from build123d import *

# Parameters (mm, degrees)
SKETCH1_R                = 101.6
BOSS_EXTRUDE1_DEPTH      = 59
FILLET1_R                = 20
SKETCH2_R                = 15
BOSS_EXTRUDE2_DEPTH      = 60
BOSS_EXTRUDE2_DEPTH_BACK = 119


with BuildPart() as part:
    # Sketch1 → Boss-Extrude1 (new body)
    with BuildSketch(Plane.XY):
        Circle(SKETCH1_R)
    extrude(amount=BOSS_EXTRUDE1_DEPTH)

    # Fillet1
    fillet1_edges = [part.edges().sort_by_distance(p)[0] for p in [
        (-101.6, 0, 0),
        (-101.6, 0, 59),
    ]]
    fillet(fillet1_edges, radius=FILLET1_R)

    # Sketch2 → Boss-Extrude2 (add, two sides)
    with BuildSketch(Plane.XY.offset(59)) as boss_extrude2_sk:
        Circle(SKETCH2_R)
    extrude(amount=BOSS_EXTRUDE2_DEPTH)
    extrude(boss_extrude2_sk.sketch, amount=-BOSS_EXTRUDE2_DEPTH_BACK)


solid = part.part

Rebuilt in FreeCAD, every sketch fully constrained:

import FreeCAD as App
import Part
import Sketcher
from FreeCAD import Vector


def edges_at(feature, points):
    """Names of the edges that pass closest to the given points."""
    edges = feature.Shape.Edges
    near = lambda p: min(range(len(edges)), key=lambda i: edges[i].distToShape(Part.Vertex(*p))[0])
    return sorted({f"Edge{near(p) + 1}" for p in points})

doc = App.newDocument("Part")
params = doc.addObject("Spreadsheet::Sheet", "Params")
for row, (alias, value) in enumerate([
    ("sketch1_diameter", "203.2 mm"),
    ("pad1_length", "59 mm"),
    ("fillet_radius", "20 mm"),
    ("sketch2_diameter", "30 mm"),
    ("pad2_length", "60 mm"),
    ("pad2_length2", "119 mm"),
], start=1):
    params.set(f"A{row}", alias)
    params.set(f"B{row}", "=" + value)
    params.setAlias(f"B{row}", alias)

body = doc.addObject("PartDesign::Body", "Body")

sketch1 = body.newObject("Sketcher::SketchObject", "Sketch")
sketch1.AttachmentSupport = (doc.getObject("XY_Plane"), [""])
sketch1.MapMode = "FlatFace"
sketch1.addGeometry(Part.Circle(Vector(0, 0, 0), Vector(0, 0, 1), 102), False)
sketch1.addConstraint([
    Sketcher.Constraint("Coincident", 0, 3, -1, 1),
    Sketcher.Constraint("Diameter", 0, 203.2),
])
sketch1.setExpression("Constraints[1]", "Params.sketch1_diameter")
pad1 = body.newObject("PartDesign::Pad", "Pad")
pad1.Profile = sketch1
pad1.setExpression("Length", "Params.pad1_length")
doc.recompute()

fillet = body.newObject("PartDesign::Fillet", "Fillet")
fillet.Base = (pad1, edges_at(pad1, [(-101.6, 0, 0), (-101.6, 0, 59)]))
fillet.setExpression("Radius", "Params.fillet_radius")

sketch2 = body.newObject("Sketcher::SketchObject", "Sketch001")
sketch2.AttachmentSupport = (doc.getObject("XY_Plane"), [""])
sketch2.MapMode = "FlatFace"
sketch2.AttachmentOffset = App.Placement(Vector(0, 0, 59), App.Rotation())
sketch2.addGeometry(Part.Circle(Vector(0, 0, 0), Vector(0, 0, 1), 15), False)
sketch2.addConstraint([
    Sketcher.Constraint("Coincident", 0, 3, -1, 1),
    Sketcher.Constraint("Diameter", 0, 30.0),
])
sketch2.setExpression("Constraints[1]", "Params.sketch2_diameter")
pad2 = body.newObject("PartDesign::Pad", "Pad001")
pad2.Profile = sketch2
pad2.Type = "TwoLengths"
pad2.setExpression("Length", "Params.pad2_length")
pad2.setExpression("Length2", "Params.pad2_length2")

doc.recompute()
